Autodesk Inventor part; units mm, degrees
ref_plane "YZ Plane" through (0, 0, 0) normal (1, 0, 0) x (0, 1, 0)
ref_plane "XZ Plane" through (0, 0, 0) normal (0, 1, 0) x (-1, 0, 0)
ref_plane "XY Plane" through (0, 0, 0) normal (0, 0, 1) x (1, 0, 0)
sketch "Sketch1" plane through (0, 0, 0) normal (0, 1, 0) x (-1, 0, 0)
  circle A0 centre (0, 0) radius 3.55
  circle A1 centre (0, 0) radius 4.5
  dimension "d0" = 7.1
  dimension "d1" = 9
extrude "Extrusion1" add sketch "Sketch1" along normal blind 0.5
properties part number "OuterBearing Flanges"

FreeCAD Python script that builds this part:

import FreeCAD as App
import Part
import Sketcher
from FreeCAD import Vector
Q = App.Units.Quantity

doc = App.newDocument("Part")
params = doc.addObject("Spreadsheet::Sheet", "Params")
for row, (alias, value) in enumerate([
    ("sketch1_diameter", "9 mm"),
    ("sketch1_diameter2", "7.1 mm"),
    ("pad1_length", "0.5 mm"),
], start=1):
    params.set(f"A{row}", alias)
    params.set(f"B{row}", "=" + value)
    params.setAlias(f"B{row}", alias)

body = doc.addObject("PartDesign::Body", "Body")

sketch1 = body.newObject("Sketcher::SketchObject", "Sketch")
sketch1.AttachmentSupport = (doc.getObject("XZ_Plane"), [""])
sketch1.MapMode = "FlatFace"
sketch1.addGeometry(Part.Circle(Vector(0, 0, 0), Vector(0, 0, 1), 4.5), False)
sketch1.addGeometry(Part.Circle(Vector(0, 0, 0), Vector(0, 0, 1), 3.5), False)
sketch1.addConstraint(Sketcher.Constraint("Coincident", 0, 3, -1, 1))
sketch1.addConstraint(Sketcher.Constraint("Coincident", 1, 3, -1, 1))
sketch1.addConstraint(Sketcher.Constraint("Diameter", 0, Q("9 mm")))
sketch1.addConstraint(Sketcher.Constraint("Diameter", 1, Q("7.1 mm")))
sketch1.setExpression("Constraints[2]", "Params.sketch1_diameter")
sketch1.setExpression("Constraints[3]", "Params.sketch1_diameter2")
pad1 = body.newObject("PartDesign::Pad", "Pad")
pad1.Profile = sketch1
pad1.setExpression("Length", "Params.pad1_length")
pad1.Reversed = True

doc.recompute()
